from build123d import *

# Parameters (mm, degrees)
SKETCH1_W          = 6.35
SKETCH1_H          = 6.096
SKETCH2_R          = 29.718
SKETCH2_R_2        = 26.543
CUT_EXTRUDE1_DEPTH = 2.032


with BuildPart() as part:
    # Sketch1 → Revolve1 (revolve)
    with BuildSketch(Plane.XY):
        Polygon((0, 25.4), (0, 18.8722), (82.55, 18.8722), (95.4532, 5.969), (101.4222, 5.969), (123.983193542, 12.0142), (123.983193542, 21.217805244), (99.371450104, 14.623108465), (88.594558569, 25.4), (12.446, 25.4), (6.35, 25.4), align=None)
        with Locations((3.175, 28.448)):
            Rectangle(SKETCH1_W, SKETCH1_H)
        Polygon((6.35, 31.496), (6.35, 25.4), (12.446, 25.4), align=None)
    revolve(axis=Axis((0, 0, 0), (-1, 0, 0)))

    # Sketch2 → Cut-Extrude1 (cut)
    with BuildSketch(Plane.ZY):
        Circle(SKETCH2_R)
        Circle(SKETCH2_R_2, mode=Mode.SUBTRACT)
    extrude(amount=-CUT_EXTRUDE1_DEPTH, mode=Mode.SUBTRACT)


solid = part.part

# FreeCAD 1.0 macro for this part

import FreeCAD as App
import Part
import Sketcher
from FreeCAD import Vector
Q = App.Units.Quantity

doc = App.newDocument("Part")
body = doc.addObject("PartDesign::Body", "Body")

# Sketch on XY plane
sketch1 = doc.addObject("Sketcher::SketchObject", "Sketch")
body.addObject(sketch1)
sketch1.AttachmentSupport = (doc.XY_Plane, [""])
sketch1.MapMode = "FlatFace"
sketch1.addGeometry(Part.LineSegment(Vector(0, 19, 0), Vector(83, 19, 0)), False)
sketch1.addGeometry(Part.LineSegment(Vector(83, 19, 0), Vector(95, 6, 0)), False)
sketch1.addGeometry(Part.LineSegment(Vector(95, 6, 0), Vector(101, 6, 0)), False)
sketch1.addGeometry(Part.LineSegment(Vector(101, 6, 0), Vector(124, 12, 0)), False)
sketch1.addGeometry(Part.LineSegment(Vector(124, 12, 0), Vector(124, 21, 0)), False)
sketch1.addGeometry(Part.LineSegment(Vector(124, 21, 0), Vector(99, 15, 0)), False)
sketch1.addGeometry(Part.LineSegment(Vector(99, 15, 0), Vector(89, 25, 0)), False)
sketch1.addGeometry(Part.LineSegment(Vector(89, 25, 0), Vector(12, 25, 0)), False)
sketch1.addGeometry(Part.LineSegment(Vector(12, 25, 0), Vector(6, 31, 0)), False)
sketch1.addGeometry(Part.LineSegment(Vector(6, 31, 0), Vector(0, 31, 0)), False)
sketch1.addGeometry(Part.LineSegment(Vector(0, 31, 0), Vector(0, 19, 0)), False)
sketch1.addConstraint(Sketcher.Constraint("Coincident", 0, 2, 1, 1))
sketch1.addConstraint(Sketcher.Constraint("Coincident", 1, 2, 2, 1))
sketch1.addConstraint(Sketcher.Constraint("Coincident", 2, 2, 3, 1))
sketch1.addConstraint(Sketcher.Constraint("Coincident", 3, 2, 4, 1))
sketch1.addConstraint(Sketcher.Constraint("Coincident", 4, 2, 5, 1))
sketch1.addConstraint(Sketcher.Constraint("Coincident", 5, 2, 6, 1))
sketch1.addConstraint(Sketcher.Constraint("Coincident", 6, 2, 7, 1))
sketch1.addConstraint(Sketcher.Constraint("Coincident", 7, 2, 8, 1))
sketch1.addConstraint(Sketcher.Constraint("Coincident", 8, 2, 9, 1))
sketch1.addConstraint(Sketcher.Constraint("Coincident", 9, 2, 10, 1))
sketch1.addConstraint(Sketcher.Constraint("Coincident", 10, 2, 0, 1))
sketch1.addConstraint(Sketcher.Constraint("Horizontal", 0))
sketch1.addConstraint(Sketcher.Constraint("Horizontal", 2))
sketch1.addConstraint(Sketcher.Constraint("Vertical", 4))
sketch1.addConstraint(Sketcher.Constraint("Horizontal", 7))
sketch1.addConstraint(Sketcher.Constraint("Horizontal", 9))
sketch1.addConstraint(Sketcher.Constraint("Vertical", 10))
sketch1.addConstraint(Sketcher.Constraint("PointOnObject", 9, 2, -2))
sketch1.addConstraint(Sketcher.Constraint("Parallel", 3, 5))
sketch1.addConstraint(Sketcher.Constraint("Parallel", 1, 6))
sketch1.addConstraint(Sketcher.Constraint("Parallel", 6, 8))
sketch1.addConstraint(Sketcher.Constraint("DistanceY", -1, 1, 6, 2, Q("1 in")))
sketch1.addConstraint(Sketcher.Constraint("Angle", 1, Q("-45 deg")))
sketch1.addConstraint(Sketcher.Constraint("Angle", 3, Q("15 deg")))
sketch1.addConstraint(Sketcher.Constraint("DistanceX", 8, 2, 0, 2, Q("3 in")))
sketch1.addConstraint(Sketcher.Constraint("DistanceX", 0, 1, 0, 2, Q("3.25 in")))
sketch1.addConstraint(Sketcher.Constraint("DistanceX", 2, 1, 2, 2, Q("0.235 in")))
sketch1.addConstraint(Sketcher.Constraint("DistanceY", 10, 2, 10, 1, Q("0.497 in")))
sketch1.addConstraint(Sketcher.Constraint("DistanceX", -1, 1, 7, 2, Q("0.49 in")))
sketch1.addConstraint(Sketcher.Constraint("DistanceY", 3, 2, 0, 2, Q("0.27 in")))
sketch1.addConstraint(Sketcher.Constraint("DistanceX", -1, 1, 1, 2, Q("3.758 in")))
sketch1.addConstraint(Sketcher.Constraint("DistanceX", 7, 2, 7, 1, 76.148559))
sketch1.addConstraint(Sketcher.Constraint("Distance", 5, 25.479952))
revolution = doc.addObject("PartDesign::Revolution", "Revolution")
body.addObject(revolution)
revolution.Profile = sketch1
revolution.ReferenceAxis = (sketch1, ["H_Axis"])
revolution.Angle = 360

# Sketch on YZ plane
sketch2 = doc.addObject("Sketcher::SketchObject", "Sketch001")
body.addObject(sketch2)
sketch2.AttachmentSupport = (doc.YZ_Plane, [""])
sketch2.MapMode = "FlatFace"
sketch2.addGeometry(Part.Circle(Vector(0, 0, 0), Vector(0, 0, 1), 30), False)
sketch2.addGeometry(Part.Circle(Vector(0, 0, 0), Vector(0, 0, 1), 27), False)
sketch2.addConstraint(Sketcher.Constraint("Coincident", 0, 3, -1, 1))
sketch2.addConstraint(Sketcher.Constraint("Coincident", 1, 3, -1, 1))
sketch2.addConstraint(Sketcher.Constraint("Diameter", 0, Q("2.34 in")))
sketch2.addConstraint(Sketcher.Constraint("Diameter", 1, Q("2.09 in")))
pocket1 = doc.addObject("PartDesign::Pocket", "Pocket")
body.addObject(pocket1)
pocket1.Profile = sketch2
pocket1.Length = Q("0.08 in")
pocket1.Reversed = True

doc.recompute()
